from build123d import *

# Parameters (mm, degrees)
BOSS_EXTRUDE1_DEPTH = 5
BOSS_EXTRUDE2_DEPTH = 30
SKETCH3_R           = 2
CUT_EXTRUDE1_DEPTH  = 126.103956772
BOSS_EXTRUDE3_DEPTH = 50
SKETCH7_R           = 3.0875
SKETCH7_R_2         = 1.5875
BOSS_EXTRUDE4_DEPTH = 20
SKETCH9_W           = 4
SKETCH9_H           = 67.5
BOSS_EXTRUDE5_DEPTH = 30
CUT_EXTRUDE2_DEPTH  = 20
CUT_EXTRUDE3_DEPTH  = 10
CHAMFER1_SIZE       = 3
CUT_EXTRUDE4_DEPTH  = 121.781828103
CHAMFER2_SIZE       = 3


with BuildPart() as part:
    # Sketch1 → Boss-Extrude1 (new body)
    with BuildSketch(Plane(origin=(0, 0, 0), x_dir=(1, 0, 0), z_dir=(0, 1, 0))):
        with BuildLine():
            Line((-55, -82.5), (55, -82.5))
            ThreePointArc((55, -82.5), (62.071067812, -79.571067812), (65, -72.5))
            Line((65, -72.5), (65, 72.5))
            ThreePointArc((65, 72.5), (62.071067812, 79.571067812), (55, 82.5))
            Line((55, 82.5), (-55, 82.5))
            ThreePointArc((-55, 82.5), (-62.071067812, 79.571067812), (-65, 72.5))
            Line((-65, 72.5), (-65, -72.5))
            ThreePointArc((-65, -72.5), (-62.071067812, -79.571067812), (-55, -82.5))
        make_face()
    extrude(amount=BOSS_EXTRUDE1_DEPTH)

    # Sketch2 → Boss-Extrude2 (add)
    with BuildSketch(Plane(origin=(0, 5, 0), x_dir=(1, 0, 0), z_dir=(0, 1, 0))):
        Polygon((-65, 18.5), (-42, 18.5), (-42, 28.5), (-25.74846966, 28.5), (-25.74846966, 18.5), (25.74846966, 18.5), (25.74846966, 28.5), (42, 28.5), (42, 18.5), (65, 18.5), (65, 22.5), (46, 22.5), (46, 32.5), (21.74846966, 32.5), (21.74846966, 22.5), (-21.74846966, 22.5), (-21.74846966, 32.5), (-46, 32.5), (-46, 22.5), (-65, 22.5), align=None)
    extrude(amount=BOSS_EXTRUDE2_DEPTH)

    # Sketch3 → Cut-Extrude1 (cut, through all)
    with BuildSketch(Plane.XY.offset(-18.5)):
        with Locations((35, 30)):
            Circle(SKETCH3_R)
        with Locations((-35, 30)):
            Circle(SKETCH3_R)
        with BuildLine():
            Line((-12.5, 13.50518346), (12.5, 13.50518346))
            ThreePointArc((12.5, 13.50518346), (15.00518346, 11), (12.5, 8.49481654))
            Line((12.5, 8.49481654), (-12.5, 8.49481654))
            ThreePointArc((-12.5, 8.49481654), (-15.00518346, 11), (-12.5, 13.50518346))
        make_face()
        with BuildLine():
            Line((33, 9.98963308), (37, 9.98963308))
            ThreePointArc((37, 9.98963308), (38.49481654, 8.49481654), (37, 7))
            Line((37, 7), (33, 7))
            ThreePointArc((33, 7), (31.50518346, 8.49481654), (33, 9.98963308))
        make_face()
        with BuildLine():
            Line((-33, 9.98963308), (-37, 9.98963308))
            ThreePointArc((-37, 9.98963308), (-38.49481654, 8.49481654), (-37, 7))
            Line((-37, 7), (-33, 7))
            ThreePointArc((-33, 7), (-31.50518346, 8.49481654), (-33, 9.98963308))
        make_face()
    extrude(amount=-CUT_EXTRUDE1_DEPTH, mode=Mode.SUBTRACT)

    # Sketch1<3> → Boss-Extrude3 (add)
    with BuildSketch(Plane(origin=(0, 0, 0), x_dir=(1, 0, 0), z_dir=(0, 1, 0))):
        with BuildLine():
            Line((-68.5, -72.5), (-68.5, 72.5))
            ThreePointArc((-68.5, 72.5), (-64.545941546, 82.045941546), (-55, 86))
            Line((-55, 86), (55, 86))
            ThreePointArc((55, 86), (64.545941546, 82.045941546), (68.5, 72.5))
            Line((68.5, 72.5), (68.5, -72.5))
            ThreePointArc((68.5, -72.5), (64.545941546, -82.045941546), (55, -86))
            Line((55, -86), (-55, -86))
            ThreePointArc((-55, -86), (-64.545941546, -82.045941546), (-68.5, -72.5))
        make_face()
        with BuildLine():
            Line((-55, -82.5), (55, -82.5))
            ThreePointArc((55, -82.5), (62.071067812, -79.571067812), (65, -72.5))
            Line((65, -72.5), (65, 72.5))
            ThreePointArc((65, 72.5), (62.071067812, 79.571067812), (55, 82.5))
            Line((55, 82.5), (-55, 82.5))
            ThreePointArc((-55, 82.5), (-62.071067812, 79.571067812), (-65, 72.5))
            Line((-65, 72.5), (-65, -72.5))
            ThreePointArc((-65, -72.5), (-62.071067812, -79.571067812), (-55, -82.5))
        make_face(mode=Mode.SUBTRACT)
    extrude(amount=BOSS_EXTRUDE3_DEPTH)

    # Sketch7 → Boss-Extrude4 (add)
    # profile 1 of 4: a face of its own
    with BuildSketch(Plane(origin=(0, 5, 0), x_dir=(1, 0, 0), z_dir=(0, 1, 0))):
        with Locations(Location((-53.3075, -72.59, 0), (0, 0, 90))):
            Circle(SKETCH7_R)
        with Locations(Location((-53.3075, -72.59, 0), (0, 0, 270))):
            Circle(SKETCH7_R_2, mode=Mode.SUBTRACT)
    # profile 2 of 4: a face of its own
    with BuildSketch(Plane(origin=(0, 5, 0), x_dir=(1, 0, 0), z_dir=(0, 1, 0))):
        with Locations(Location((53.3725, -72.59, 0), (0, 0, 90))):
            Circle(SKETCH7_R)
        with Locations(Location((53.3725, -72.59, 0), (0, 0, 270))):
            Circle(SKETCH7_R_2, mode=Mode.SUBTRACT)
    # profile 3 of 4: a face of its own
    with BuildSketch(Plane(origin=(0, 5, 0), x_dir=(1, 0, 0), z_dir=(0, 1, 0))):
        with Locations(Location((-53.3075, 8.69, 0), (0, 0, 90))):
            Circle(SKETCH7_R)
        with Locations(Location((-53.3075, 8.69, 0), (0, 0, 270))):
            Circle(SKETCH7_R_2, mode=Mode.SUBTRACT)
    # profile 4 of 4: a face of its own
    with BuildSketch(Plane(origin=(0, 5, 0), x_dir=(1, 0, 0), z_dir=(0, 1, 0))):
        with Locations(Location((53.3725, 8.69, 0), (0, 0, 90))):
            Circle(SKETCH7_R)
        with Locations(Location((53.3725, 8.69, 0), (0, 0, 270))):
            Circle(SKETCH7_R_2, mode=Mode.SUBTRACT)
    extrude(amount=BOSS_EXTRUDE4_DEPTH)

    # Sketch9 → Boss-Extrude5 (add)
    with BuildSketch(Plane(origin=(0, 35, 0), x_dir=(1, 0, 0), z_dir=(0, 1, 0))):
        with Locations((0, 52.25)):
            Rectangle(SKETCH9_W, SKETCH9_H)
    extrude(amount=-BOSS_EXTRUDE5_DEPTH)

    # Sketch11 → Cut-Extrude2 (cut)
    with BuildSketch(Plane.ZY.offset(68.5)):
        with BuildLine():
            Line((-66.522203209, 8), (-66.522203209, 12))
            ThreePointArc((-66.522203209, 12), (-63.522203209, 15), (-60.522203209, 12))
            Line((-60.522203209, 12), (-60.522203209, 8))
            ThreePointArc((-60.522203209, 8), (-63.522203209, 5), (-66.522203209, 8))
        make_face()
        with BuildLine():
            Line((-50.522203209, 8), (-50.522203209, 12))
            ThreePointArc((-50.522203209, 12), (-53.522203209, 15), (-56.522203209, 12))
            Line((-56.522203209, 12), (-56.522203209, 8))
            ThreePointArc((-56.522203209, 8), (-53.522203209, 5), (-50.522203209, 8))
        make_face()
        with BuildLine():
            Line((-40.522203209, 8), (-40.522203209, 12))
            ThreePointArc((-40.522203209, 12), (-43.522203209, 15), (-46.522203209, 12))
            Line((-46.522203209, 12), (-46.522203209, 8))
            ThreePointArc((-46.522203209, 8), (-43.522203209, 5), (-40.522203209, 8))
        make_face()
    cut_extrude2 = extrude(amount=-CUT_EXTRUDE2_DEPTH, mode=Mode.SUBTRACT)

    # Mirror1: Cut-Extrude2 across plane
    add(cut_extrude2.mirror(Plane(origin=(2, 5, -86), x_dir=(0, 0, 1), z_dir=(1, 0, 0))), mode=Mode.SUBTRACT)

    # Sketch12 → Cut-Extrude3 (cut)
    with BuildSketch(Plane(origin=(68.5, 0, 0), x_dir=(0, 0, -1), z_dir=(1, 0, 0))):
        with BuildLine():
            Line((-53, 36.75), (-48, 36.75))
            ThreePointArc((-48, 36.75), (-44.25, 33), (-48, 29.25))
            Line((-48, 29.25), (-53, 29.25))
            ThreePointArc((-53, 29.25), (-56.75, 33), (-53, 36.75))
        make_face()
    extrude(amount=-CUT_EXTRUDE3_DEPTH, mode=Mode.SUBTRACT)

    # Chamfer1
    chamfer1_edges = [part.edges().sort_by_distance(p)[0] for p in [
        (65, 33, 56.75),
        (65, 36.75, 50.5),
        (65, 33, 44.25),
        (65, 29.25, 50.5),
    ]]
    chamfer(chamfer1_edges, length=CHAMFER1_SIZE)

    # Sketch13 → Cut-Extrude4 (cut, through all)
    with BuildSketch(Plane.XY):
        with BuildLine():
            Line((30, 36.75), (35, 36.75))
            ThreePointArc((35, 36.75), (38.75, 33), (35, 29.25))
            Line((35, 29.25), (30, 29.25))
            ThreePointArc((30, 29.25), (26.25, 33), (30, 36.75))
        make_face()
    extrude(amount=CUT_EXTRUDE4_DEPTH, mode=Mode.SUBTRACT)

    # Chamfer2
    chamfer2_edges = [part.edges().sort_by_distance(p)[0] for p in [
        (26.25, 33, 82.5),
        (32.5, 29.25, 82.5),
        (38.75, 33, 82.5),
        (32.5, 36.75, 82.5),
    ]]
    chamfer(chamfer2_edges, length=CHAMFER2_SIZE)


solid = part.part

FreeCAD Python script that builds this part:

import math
import FreeCAD as App
import Part
import Sketcher
from FreeCAD import Vector


def edges_at(feature, points):
    """Names of the edges that pass closest to the given points."""
    edges = feature.Shape.Edges
    near = lambda p: min(range(len(edges)), key=lambda i: edges[i].distToShape(Part.Vertex(*p))[0])
    return sorted({f"Edge{near(p) + 1}" for p in points})

doc = App.newDocument("Part")
body = doc.addObject("PartDesign::Body", "Body")

# Sketch on XZ plane
sketch1 = body.newObject("Sketcher::SketchObject", "Sketch")
sketch1.AttachmentSupport = (doc.getObject("XZ_Plane"), [""])
sketch1.MapMode = "FlatFace"
sketch1.addGeometry(Part.LineSegment(Vector(-55, 82.5, 0), Vector(55, 82.5, 0)), False)
sketch1.addGeometry(Part.ArcOfCircle(Part.Circle(Vector(55, 72.5, 0), Vector(0, 0, 1), 10), math.radians(0), math.radians(90)), False)
sketch1.addGeometry(Part.LineSegment(Vector(65, 72.5, 0), Vector(65, -72.5, 0)), False)
sketch1.addGeometry(Part.ArcOfCircle(Part.Circle(Vector(55, -72.5, 0), Vector(0, 0, 1), 10), math.radians(-90), math.radians(0)), False)
sketch1.addGeometry(Part.LineSegment(Vector(55, -82.5, 0), Vector(-55, -82.5, 0)), False)
sketch1.addGeometry(Part.ArcOfCircle(Part.Circle(Vector(-55, -72.5, 0), Vector(0, 0, 1), 10), math.radians(180), math.radians(270)), False)
sketch1.addGeometry(Part.LineSegment(Vector(-65, -72.5, 0), Vector(-65, 72.5, 0)), False)
sketch1.addGeometry(Part.ArcOfCircle(Part.Circle(Vector(-55, 72.5, 0), Vector(0, 0, 1), 10), math.radians(90), math.radians(180)), False)
sketch1.addConstraint(Sketcher.Constraint("Tangent", 0, 2, 1, 2))
sketch1.addConstraint(Sketcher.Constraint("Tangent", 1, 1, 2, 1))
sketch1.addConstraint(Sketcher.Constraint("Tangent", 2, 2, 3, 2))
sketch1.addConstraint(Sketcher.Constraint("Tangent", 3, 1, 4, 1))
sketch1.addConstraint(Sketcher.Constraint("Tangent", 4, 2, 5, 2))
sketch1.addConstraint(Sketcher.Constraint("Tangent", 5, 1, 6, 1))
sketch1.addConstraint(Sketcher.Constraint("Tangent", 6, 2, 7, 2))
sketch1.addConstraint(Sketcher.Constraint("Tangent", 7, 1, 0, 1))
sketch1.addConstraint(Sketcher.Constraint("Horizontal", 0))
sketch1.addConstraint(Sketcher.Constraint("Vertical", 2))
sketch1.addConstraint(Sketcher.Constraint("Horizontal", 4))
sketch1.addConstraint(Sketcher.Constraint("Vertical", 6))
sketch1.addConstraint(Sketcher.Constraint("Equal", 1, 3))
sketch1.addConstraint(Sketcher.Constraint("Equal", 3, 5))
sketch1.addConstraint(Sketcher.Constraint("Equal", 5, 7))
sketch1.addConstraint(Sketcher.Constraint("Symmetric", 1, 3, 5, 3, -1, 1))
sketch1.addConstraint(Sketcher.Constraint("Radius", 1, 10.0))
sketch1.addConstraint(Sketcher.Constraint("DistanceX", 0, 1, 0, 2, 110.0))
sketch1.addConstraint(Sketcher.Constraint("DistanceY", 2, 2, 2, 1, 145.0))
pad1 = body.newObject("PartDesign::Pad", "Pad")
pad1.Profile = sketch1
pad1.Length = 5
pad1.Reversed = True

# Sketch on XZ plane
sketch2 = body.newObject("Sketcher::SketchObject", "Sketch001")
sketch2.AttachmentSupport = (doc.getObject("XZ_Plane"), [""])
sketch2.MapMode = "FlatFace"
sketch2.AttachmentOffset = App.Placement(Vector(0, 0, -5), App.Rotation())
sketch2.addGeometry(Part.LineSegment(Vector(-65, -18.5, 0), Vector(-42, -18.5, 0)), False)
sketch2.addGeometry(Part.LineSegment(Vector(-42, -18.5, 0), Vector(-42, -28.5, 0)), False)
sketch2.addGeometry(Part.LineSegment(Vector(-42, -28.5, 0), Vector(-25.74847, -28.5, 0)), False)
sketch2.addGeometry(Part.LineSegment(Vector(-25.74847, -28.5, 0), Vector(-25.74847, -18.5, 0)), False)
sketch2.addGeometry(Part.LineSegment(Vector(-25.74847, -18.5, 0), Vector(25.74847, -18.5, 0)), False)
sketch2.addGeometry(Part.LineSegment(Vector(25.74847, -18.5, 0), Vector(25.74847, -28.5, 0)), False)
sketch2.addGeometry(Part.LineSegment(Vector(25.74847, -28.5, 0), Vector(42, -28.5, 0)), False)
sketch2.addGeometry(Part.LineSegment(Vector(42, -28.5, 0), Vector(42, -18.5, 0)), False)
sketch2.addGeometry(Part.LineSegment(Vector(42, -18.5, 0), Vector(65, -18.5, 0)), False)
sketch2.addGeometry(Part.LineSegment(Vector(65, -18.5, 0), Vector(65, -22.5, 0)), False)
sketch2.addGeometry(Part.LineSegment(Vector(65, -22.5, 0), Vector(46, -22.5, 0)), False)
sketch2.addGeometry(Part.LineSegment(Vector(46, -22.5, 0), Vector(46, -32.5, 0)), False)
sketch2.addGeometry(Part.LineSegment(Vector(46, -32.5, 0), Vector(21.74847, -32.5, 0)), False)
sketch2.addGeometry(Part.LineSegment(Vector(21.74847, -32.5, 0), Vector(21.74847, -22.5, 0)), False)
sketch2.addGeometry(Part.LineSegment(Vector(21.74847, -22.5, 0), Vector(-21.74847, -22.5, 0)), False)
sketch2.addGeometry(Part.LineSegment(Vector(-21.74847, -22.5, 0), Vector(-21.74847, -32.5, 0)), False)
sketch2.addGeometry(Part.LineSegment(Vector(-21.74847, -32.5, 0), Vector(-46, -32.5, 0)), False)
sketch2.addGeometry(Part.LineSegment(Vector(-46, -32.5, 0), Vector(-46, -22.5, 0)), False)
sketch2.addGeometry(Part.LineSegment(Vector(-46, -22.5, 0), Vector(-65, -22.5, 0)), False)
sketch2.addGeometry(Part.LineSegment(Vector(-65, -22.5, 0), Vector(-65, -18.5, 0)), False)
sketch2.addConstraint(Sketcher.Constraint("Coincident", 0, 2, 1, 1))
sketch2.addConstraint(Sketcher.Constraint("Coincident", 1, 2, 2, 1))
sketch2.addConstraint(Sketcher.Constraint("Coincident", 2, 2, 3, 1))
sketch2.addConstraint(Sketcher.Constraint("Coincident", 3, 2, 4, 1))
sketch2.addConstraint(Sketcher.Constraint("Coincident", 4, 2, 5, 1))
sketch2.addConstraint(Sketcher.Constraint("Coincident", 5, 2, 6, 1))
sketch2.addConstraint(Sketcher.Constraint("Coincident", 6, 2, 7, 1))
sketch2.addConstraint(Sketcher.Constraint("Coincident", 7, 2, 8, 1))
sketch2.addConstraint(Sketcher.Constraint("Coincident", 8, 2, 9, 1))
sketch2.addConstraint(Sketcher.Constraint("Coincident", 9, 2, 10, 1))
sketch2.addConstraint(Sketcher.Constraint("Coincident", 10, 2, 11, 1))
sketch2.addConstraint(Sketcher.Constraint("Coincident", 11, 2, 12, 1))
sketch2.addConstraint(Sketcher.Constraint("Coincident", 12, 2, 13, 1))
sketch2.addConstraint(Sketcher.Constraint("Coincident", 13, 2, 14, 1))
sketch2.addConstraint(Sketcher.Constraint("Coincident", 14, 2, 15, 1))
sketch2.addConstraint(Sketcher.Constraint("Coincident", 15, 2, 16, 1))
sketch2.addConstraint(Sketcher.Constraint("Coincident", 16, 2, 17, 1))
sketch2.addConstraint(Sketcher.Constraint("Coincident", 17, 2, 18, 1))
sketch2.addConstraint(Sketcher.Constraint("Coincident", 18, 2, 19, 1))
sketch2.addConstraint(Sketcher.Constraint("Coincident", 19, 2, 0, 1))
sketch2.addConstraint(Sketcher.Constraint("Horizontal", 0))
sketch2.addConstraint(Sketcher.Constraint("Vertical", 1))
sketch2.addConstraint(Sketcher.Constraint("Horizontal", 2))
sketch2.addConstraint(Sketcher.Constraint("Vertical", 3))
sketch2.addConstraint(Sketcher.Constraint("Horizontal", 4))
sketch2.addConstraint(Sketcher.Constraint("Vertical", 5))
sketch2.addConstraint(Sketcher.Constraint("Horizontal", 6))
sketch2.addConstraint(Sketcher.Constraint("Vertical", 7))
sketch2.addConstraint(Sketcher.Constraint("Horizontal", 8))
sketch2.addConstraint(Sketcher.Constraint("Vertical", 9))
sketch2.addConstraint(Sketcher.Constraint("Horizontal", 10))
sketch2.addConstraint(Sketcher.Constraint("Vertical", 11))
sketch2.addConstraint(Sketcher.Constraint("Horizontal", 12))
sketch2.addConstraint(Sketcher.Constraint("Vertical", 13))
sketch2.addConstraint(Sketcher.Constraint("Horizontal", 14))
sketch2.addConstraint(Sketcher.Constraint("Vertical", 15))
sketch2.addConstraint(Sketcher.Constraint("Horizontal", 16))
sketch2.addConstraint(Sketcher.Constraint("Vertical", 17))
sketch2.addConstraint(Sketcher.Constraint("Horizontal", 18))
sketch2.addConstraint(Sketcher.Constraint("Vertical", 19))
sketch2.addConstraint(Sketcher.Constraint("Symmetric", 2, 2, 5, 2, -2))
sketch2.addConstraint(Sketcher.Constraint("Symmetric", 0, 2, 7, 2, -2))
sketch2.addConstraint(Sketcher.Constraint("Symmetric", 12, 2, 15, 2, -2))
sketch2.addConstraint(Sketcher.Constraint("Symmetric", 10, 2, 17, 2, -2))
sketch2.addConstraint(Sketcher.Constraint("Horizontal", 0, 2, 3, 2))
sketch2.addConstraint(Sketcher.Constraint("Horizontal", 10, 2, 13, 2))
sketch2.addConstraint(Sketcher.Constraint("Equal", 0, 8))
sketch2.addConstraint(Sketcher.Constraint("Equal", 7, 11))
sketch2.addConstraint(Sketcher.Constraint("DistanceX", 0, 1, 0, 2, 23.0))
sketch2.addConstraint(Sketcher.Constraint("DistanceX", 10, 2, 10, 1, 19.0))
sketch2.addConstraint(Sketcher.Constraint("DistanceY", 1, 2, 1, 1, 10.0))
sketch2.addConstraint(Sketcher.Constraint("DistanceY", 9, 2, 9, 1, 4.0))
sketch2.addConstraint(Sketcher.Constraint("DistanceX", 0, 2, -1, 1, 42.0))
sketch2.addConstraint(Sketcher.Constraint("DistanceX", 12, 2, 5, 2, 4.0))
sketch2.addConstraint(Sketcher.Constraint("DistanceY", 0, 2, -1, 1, 18.5))
sketch2.addConstraint(Sketcher.Constraint("DistanceX", 2, 1, 2, 2, 16.25153))
pad2 = body.newObject("PartDesign::Pad", "Pad001")
pad2.Profile = sketch2
pad2.Length = 30
pad2.Reversed = True

# Sketch on XY plane
sketch3 = body.newObject("Sketcher::SketchObject", "Sketch002")
sketch3.AttachmentSupport = (doc.getObject("XY_Plane"), [""])
sketch3.MapMode = "FlatFace"
sketch3.AttachmentOffset = App.Placement(Vector(0, 0, -18.5), App.Rotation())
sketch3.addGeometry(Part.Circle(Vector(35, 30, 0), Vector(0, 0, 1), 2), False)
sketch3.addGeometry(Part.Circle(Vector(-35, 30, 0), Vector(0, 0, 1), 2), False)
sketch3.addGeometry(Part.LineSegment(Vector(12.5, 13.505183, 0), Vector(-12.5, 13.505183, 0)), False)
sketch3.addGeometry(Part.ArcOfCircle(Part.Circle(Vector(-12.5, 11, 0), Vector(0, 0, 1), 2.505183), math.radians(90), math.radians(270)), False)
sketch3.addGeometry(Part.LineSegment(Vector(-12.5, 8.494817, 0), Vector(12.5, 8.494817, 0)), False)
sketch3.addGeometry(Part.ArcOfCircle(Part.Circle(Vector(12.5, 11, 0), Vector(0, 0, 1), 2.505183), math.radians(-90), math.radians(90)), False)
sketch3.addGeometry(Part.LineSegment(Vector(37, 9.989633, 0), Vector(33, 9.989633, 0)), False)
sketch3.addGeometry(Part.ArcOfCircle(Part.Circle(Vector(33, 8.494817, 0), Vector(0, 0, 1), 1.494817), math.radians(90), math.radians(270)), False)
sketch3.addGeometry(Part.LineSegment(Vector(33, 7, 0), Vector(37, 7, 0)), False)
sketch3.addGeometry(Part.ArcOfCircle(Part.Circle(Vector(37, 8.494817, 0), Vector(0, 0, 1), 1.494817), math.radians(-90), math.radians(90)), False)
sketch3.addGeometry(Part.LineSegment(Vector(-33, 9.989633, 0), Vector(-37, 9.989633, 0)), False)
sketch3.addGeometry(Part.ArcOfCircle(Part.Circle(Vector(-37, 8.494817, 0), Vector(0, 0, 1), 1.494817), math.radians(90), math.radians(270)), False)
sketch3.addGeometry(Part.LineSegment(Vector(-37, 7, 0), Vector(-33, 7, 0)), False)
sketch3.addGeometry(Part.ArcOfCircle(Part.Circle(Vector(-33, 8.494817, 0), Vector(0, 0, 1), 1.494817), math.radians(-90), math.radians(90)), False)
sketch3.addConstraint(Sketcher.Constraint("Tangent", 2, 2, 3, 1))
sketch3.addConstraint(Sketcher.Constraint("Tangent", 3, 2, 4, 1))
sketch3.addConstraint(Sketcher.Constraint("Tangent", 4, 2, 5, 1))
sketch3.addConstraint(Sketcher.Constraint("Tangent", 5, 2, 2, 1))
sketch3.addConstraint(Sketcher.Constraint("Tangent", 6, 2, 7, 1))
sketch3.addConstraint(Sketcher.Constraint("Tangent", 7, 2, 8, 1))
sketch3.addConstraint(Sketcher.Constraint("Tangent", 8, 2, 9, 1))
sketch3.addConstraint(Sketcher.Constraint("Tangent", 9, 2, 6, 1))
sketch3.addConstraint(Sketcher.Constraint("Tangent", 10, 2, 11, 1))
sketch3.addConstraint(Sketcher.Constraint("Tangent", 11, 2, 12, 1))
sketch3.addConstraint(Sketcher.Constraint("Tangent", 12, 2, 13, 1))
sketch3.addConstraint(Sketcher.Constraint("Tangent", 13, 2, 10, 1))
sketch3.addConstraint(Sketcher.Constraint("Horizontal", 2))
sketch3.addConstraint(Sketcher.Constraint("Horizontal", 4))
sketch3.addConstraint(Sketcher.Constraint("Horizontal", 6))
sketch3.addConstraint(Sketcher.Constraint("Horizontal", 8))
sketch3.addConstraint(Sketcher.Constraint("Horizontal", 10))
sketch3.addConstraint(Sketcher.Constraint("Horizontal", 12))
sketch3.addConstraint(Sketcher.Constraint("Equal", 0, 1))
sketch3.addConstraint(Sketcher.Constraint("Equal", 9, 11))
sketch3.addConstraint(Sketcher.Constraint("Symmetric", 0, 3, 1, 3, -2))
sketch3.addConstraint(Sketcher.Constraint("Symmetric", 9, 3, 11, 3, -2))
sketch3.addConstraint(Sketcher.Constraint("Horizontal", 13, 3, 3, 2))
sketch3.addConstraint(Sketcher.Constraint("Equal", 8, 10))
sketch3.addConstraint(Sketcher.Constraint("Diameter", 0, 4.0))
sketch3.addConstraint(Sketcher.Constraint("DistanceX", 2, 2, 2, 1, 25.0))
sketch3.addConstraint(Sketcher.Constraint("DistanceX", 6, 2, 6, 1, 4.0))
sketch3.addConstraint(Sketcher.Constraint("DistanceX", -1, 1, 0, 3, 35.0))
sketch3.addConstraint(Sketcher.Constraint("DistanceY", -1, 1, 0, 3, 30.0))
sketch3.addConstraint(Sketcher.Constraint("DistanceY", -1, 1, 3, 3, 11.0))
sketch3.addConstraint(Sketcher.Constraint("DistanceX", -1, 1, 7, 3, 33.0))
sketch3.addConstraint(Sketcher.Constraint("DistanceY", -1, 1, 7, 2, 7.0))
sketch3.addConstraint(Sketcher.Constraint("DistanceX", 3, 3, -1, 1, 12.5))
sketch3.addConstraint(Sketcher.Constraint("Radius", 3, 2.505183))
pocket1 = body.newObject("PartDesign::Pocket", "Pocket")
pocket1.Profile = sketch3
pocket1.Type = "ThroughAll"

# Sketch on XZ plane
sketch4 = body.newObject("Sketcher::SketchObject", "Sketch003")
sketch4.AttachmentSupport = (doc.getObject("XZ_Plane"), [""])
sketch4.MapMode = "FlatFace"
sketch4.addGeometry(Part.LineSegment(Vector(-68.5, -72.5, 0), Vector(-68.5, 72.5, 0)), False)
sketch4.addGeometry(Part.ArcOfCircle(Part.Circle(Vector(-55, 72.5, 0), Vector(0, 0, 1), 13.5), math.radians(90), math.radians(180)), False)
sketch4.addGeometry(Part.LineSegment(Vector(-55, 86, 0), Vector(55, 86, 0)), False)
sketch4.addGeometry(Part.ArcOfCircle(Part.Circle(Vector(55, 72.5, 0), Vector(0, 0, 1), 13.5), math.radians(0), math.radians(90)), False)
sketch4.addGeometry(Part.LineSegment(Vector(68.5, 72.5, 0), Vector(68.5, -72.5, 0)), False)
sketch4.addGeometry(Part.ArcOfCircle(Part.Circle(Vector(55, -72.5, 0), Vector(0, 0, 1), 13.5), math.radians(-90), math.radians(0)), False)
sketch4.addGeometry(Part.LineSegment(Vector(55, -86, 0), Vector(-55, -86, 0)), False)
sketch4.addGeometry(Part.ArcOfCircle(Part.Circle(Vector(-55, -72.5, 0), Vector(0, 0, 1), 13.5), math.radians(180), math.radians(270)), False)
sketch4.addGeometry(Part.ArcOfCircle(Part.Circle(Vector(-55, 72.5, 0), Vector(0, 0, 1), 10), math.radians(90), math.radians(180)), False)
sketch4.addGeometry(Part.LineSegment(Vector(-65, 72.5, 0), Vector(-65, -72.5, 0)), False)
sketch4.addGeometry(Part.ArcOfCircle(Part.Circle(Vector(-55, -72.5, 0), Vector(0, 0, 1), 10), math.radians(180), math.radians(270)), False)
sketch4.addGeometry(Part.LineSegment(Vector(-55, -82.5, 0), Vector(55, -82.5, 0)), False)
sketch4.addGeometry(Part.ArcOfCircle(Part.Circle(Vector(55, -72.5, 0), Vector(0, 0, 1), 10), math.radians(-90), math.radians(0)), False)
sketch4.addGeometry(Part.LineSegment(Vector(65, -72.5, 0), Vector(65, 72.5, 0)), False)
sketch4.addGeometry(Part.ArcOfCircle(Part.Circle(Vector(55, 72.5, 0), Vector(0, 0, 1), 10), math.radians(0), math.radians(90)), False)
sketch4.addGeometry(Part.LineSegment(Vector(55, 82.5, 0), Vector(-55, 82.5, 0)), False)
sketch4.addConstraint(Sketcher.Constraint("Tangent", 0, 2, 1, 2))
sketch4.addConstraint(Sketcher.Constraint("Tangent", 1, 1, 2, 1))
sketch4.addConstraint(Sketcher.Constraint("Tangent", 2, 2, 3, 2))
sketch4.addConstraint(Sketcher.Constraint("Tangent", 3, 1, 4, 1))
sketch4.addConstraint(Sketcher.Constraint("Tangent", 4, 2, 5, 2))
sketch4.addConstraint(Sketcher.Constraint("Tangent", 5, 1, 6, 1))
sketch4.addConstraint(Sketcher.Constraint("Tangent", 6, 2, 7, 2))
sketch4.addConstraint(Sketcher.Constraint("Tangent", 7, 1, 0, 1))
sketch4.addConstraint(Sketcher.Constraint("Tangent", 8, 2, 9, 1))
sketch4.addConstraint(Sketcher.Constraint("Tangent", 9, 2, 10, 1))
sketch4.addConstraint(Sketcher.Constraint("Tangent", 10, 2, 11, 1))
sketch4.addConstraint(Sketcher.Constraint("Tangent", 11, 2, 12, 1))
sketch4.addConstraint(Sketcher.Constraint("Tangent", 12, 2, 13, 1))
sketch4.addConstraint(Sketcher.Constraint("Tangent", 13, 2, 14, 1))
sketch4.addConstraint(Sketcher.Constraint("Tangent", 14, 2, 15, 1))
sketch4.addConstraint(Sketcher.Constraint("Tangent", 15, 2, 8, 1))
sketch4.addConstraint(Sketcher.Constraint("Vertical", 0))
sketch4.addConstraint(Sketcher.Constraint("Horizontal", 2))
sketch4.addConstraint(Sketcher.Constraint("Vertical", 4))
sketch4.addConstraint(Sketcher.Constraint("Horizontal", 6))
sketch4.addConstraint(Sketcher.Constraint("Vertical", 9))
sketch4.addConstraint(Sketcher.Constraint("Horizontal", 11))
sketch4.addConstraint(Sketcher.Constraint("Vertical", 13))
sketch4.addConstraint(Sketcher.Constraint("Horizontal", 15))
sketch4.addConstraint(Sketcher.Constraint("Coincident", 8, 3, 1, 3))
sketch4.addConstraint(Sketcher.Constraint("Coincident", 10, 3, 7, 3))
sketch4.addConstraint(Sketcher.Constraint("Coincident", 12, 3, 5, 3))
sketch4.addConstraint(Sketcher.Constraint("Equal", 1, 3))
sketch4.addConstraint(Sketcher.Constraint("Equal", 3, 5))
sketch4.addConstraint(Sketcher.Constraint("Equal", 5, 7))
sketch4.addConstraint(Sketcher.Constraint("Equal", 12, 14))
sketch4.addConstraint(Sketcher.Constraint("Symmetric", 1, 3, 5, 3, -1, 1))
sketch4.addConstraint(Sketcher.Constraint("Radius", 8, 10.0))
sketch4.addConstraint(Sketcher.Constraint("Radius", 1, 13.5))
sketch4.addConstraint(Sketcher.Constraint("DistanceX", 2, 1, 2, 2, 110.0))
sketch4.addConstraint(Sketcher.Constraint("DistanceY", 0, 1, 0, 2, 145.0))
pad3 = body.newObject("PartDesign::Pad", "Pad002")
pad3.Profile = sketch4
pad3.Length = 50
pad3.Reversed = True

# Sketch on XZ plane
sketch5 = body.newObject("Sketcher::SketchObject", "Sketch004")
sketch5.AttachmentSupport = (doc.getObject("XZ_Plane"), [""])
sketch5.MapMode = "FlatFace"
sketch5.AttachmentOffset = App.Placement(Vector(0, 0, -5), App.Rotation())
sketch5.addGeometry(Part.Circle(Vector(-53.3075, 72.59, 0), Vector(0, 0, 1), 3.0875), False)
sketch5.addGeometry(Part.Circle(Vector(-53.3075, 72.59, 0), Vector(0, 0, 1), 1.5875), False)
sketch5.addGeometry(Part.Circle(Vector(53.3725, 72.59, 0), Vector(0, 0, 1), 3.0875), False)
sketch5.addGeometry(Part.Circle(Vector(53.3725, 72.59, 0), Vector(0, 0, 1), 1.5875), False)
sketch5.addGeometry(Part.Circle(Vector(-53.3075, -8.69, 0), Vector(0, 0, 1), 3.0875), False)
sketch5.addGeometry(Part.Circle(Vector(-53.3075, -8.69, 0), Vector(0, 0, 1), 1.5875), False)
sketch5.addGeometry(Part.Circle(Vector(53.3725, -8.69, 0), Vector(0, 0, 1), 3.0875), False)
sketch5.addGeometry(Part.Circle(Vector(53.3725, -8.69, 0), Vector(0, 0, 1), 1.5875), False)
sketch5.addConstraint(Sketcher.Constraint("Coincident", 1, 3, 0, 3))
sketch5.addConstraint(Sketcher.Constraint("Coincident", 3, 3, 2, 3))
sketch5.addConstraint(Sketcher.Constraint("Coincident", 5, 3, 4, 3))
sketch5.addConstraint(Sketcher.Constraint("Coincident", 7, 3, 6, 3))
sketch5.addConstraint(Sketcher.Constraint("Equal", 0, 2))
sketch5.addConstraint(Sketcher.Constraint("Equal", 1, 3))
sketch5.addConstraint(Sketcher.Constraint("Equal", 2, 4))
sketch5.addConstraint(Sketcher.Constraint("Equal", 3, 5))
sketch5.addConstraint(Sketcher.Constraint("Equal", 4, 6))
sketch5.addConstraint(Sketcher.Constraint("Equal", 5, 7))
sketch5.addConstraint(Sketcher.Constraint("Horizontal", 1, 3, 2, 3))
sketch5.addConstraint(Sketcher.Constraint("Horizontal", 5, 3, 6, 3))
sketch5.addConstraint(Sketcher.Constraint("Vertical", 1, 3, 4, 3))
sketch5.addConstraint(Sketcher.Constraint("Vertical", 3, 3, 6, 3))
sketch5.addConstraint(Sketcher.Constraint("Diameter", 0, 6.175))
sketch5.addConstraint(Sketcher.Constraint("Diameter", 1, 3.175))
sketch5.addConstraint(Sketcher.Constraint("DistanceY", -1, 1, 0, 3, 72.59))
sketch5.addConstraint(Sketcher.Constraint("DistanceY", 4, 3, -1, 1, 8.69))
sketch5.addConstraint(Sketcher.Constraint("DistanceX", 0, 3, 2, 3, 106.68))
sketch5.addConstraint(Sketcher.Constraint("DistanceX", 0, 3, -1, 1, 53.3075))
pad4 = body.newObject("PartDesign::Pad", "Pad003")
pad4.Profile = sketch5
pad4.Length = 20
pad4.Reversed = True

# Sketch on XZ plane
sketch6 = body.newObject("Sketcher::SketchObject", "Sketch005")
sketch6.AttachmentSupport = (doc.getObject("XZ_Plane"), [""])
sketch6.MapMode = "FlatFace"
sketch6.AttachmentOffset = App.Placement(Vector(0, 0, -35), App.Rotation())
sketch6.addGeometry(Part.LineSegment(Vector(-2, -86, 0), Vector(-2, -18.5, 0)), False)
sketch6.addGeometry(Part.LineSegment(Vector(-2, -18.5, 0), Vector(2, -18.5, 0)), False)
sketch6.addGeometry(Part.LineSegment(Vector(2, -18.5, 0), Vector(2, -86, 0)), False)
sketch6.addGeometry(Part.LineSegment(Vector(2, -86, 0), Vector(-2, -86, 0)), False)
sketch6.addConstraint(Sketcher.Constraint("Coincident", 0, 2, 1, 1))
sketch6.addConstraint(Sketcher.Constraint("Coincident", 1, 2, 2, 1))
sketch6.addConstraint(Sketcher.Constraint("Coincident", 2, 2, 3, 1))
sketch6.addConstraint(Sketcher.Constraint("Coincident", 3, 2, 0, 1))
sketch6.addConstraint(Sketcher.Constraint("Vertical", 0))
sketch6.addConstraint(Sketcher.Constraint("Horizontal", 1))
sketch6.addConstraint(Sketcher.Constraint("Vertical", 2))
sketch6.addConstraint(Sketcher.Constraint("Horizontal", 3))
sketch6.addConstraint(Sketcher.Constraint("DistanceX", 1, 1, 1, 2, 4.0))
sketch6.addConstraint(Sketcher.Constraint("DistanceY", 0, 1, 0, 2, 67.5))
sketch6.addConstraint(Sketcher.Constraint("DistanceX", 0, 2, -1, 1, 2.0))
sketch6.addConstraint(Sketcher.Constraint("DistanceY", 2, 2, -1, 1, 86.0))
pad5 = body.newObject("PartDesign::Pad", "Pad004")
pad5.Profile = sketch6
pad5.Length = 30

# Sketch on YZ plane
sketch7 = body.newObject("Sketcher::SketchObject", "Sketch006")
sketch7.AttachmentSupport = (doc.getObject("YZ_Plane"), [""])
sketch7.MapMode = "FlatFace"
sketch7.AttachmentOffset = App.Placement(Vector(0, 0, -68.5), App.Rotation())
sketch7.addGeometry(Part.LineSegment(Vector(12, -66.522203, 0), Vector(8, -66.522203, 0)), False)
sketch7.addGeometry(Part.ArcOfCircle(Part.Circle(Vector(8, -63.522203, 0), Vector(0, 0, 1), 3), math.radians(90), math.radians(270)), False)
sketch7.addGeometry(Part.LineSegment(Vector(8, -60.522203, 0), Vector(12, -60.522203, 0)), False)
sketch7.addGeometry(Part.ArcOfCircle(Part.Circle(Vector(12, -63.522203, 0), Vector(0, 0, 1), 3), math.radians(-90), math.radians(90)), False)
sketch7.addGeometry(Part.LineSegment(Vector(8, -50.522203, 0), Vector(12, -50.522203, 0)), False)
sketch7.addGeometry(Part.ArcOfCircle(Part.Circle(Vector(12, -53.522203, 0), Vector(0, 0, 1), 3), math.radians(-90), math.radians(90)), False)
sketch7.addGeometry(Part.LineSegment(Vector(12, -56.522203, 0), Vector(8, -56.522203, 0)), False)
sketch7.addGeometry(Part.ArcOfCircle(Part.Circle(Vector(8, -53.522203, 0), Vector(0, 0, 1), 3), math.radians(90), math.radians(270)), False)
sketch7.addGeometry(Part.LineSegment(Vector(8, -40.522203, 0), Vector(12, -40.522203, 0)), False)
sketch7.addGeometry(Part.ArcOfCircle(Part.Circle(Vector(12, -43.522203, 0), Vector(0, 0, 1), 3), math.radians(-90), math.radians(90)), False)
sketch7.addGeometry(Part.LineSegment(Vector(12, -46.522203, 0), Vector(8, -46.522203, 0)), False)
sketch7.addGeometry(Part.ArcOfCircle(Part.Circle(Vector(8, -43.522203, 0), Vector(0, 0, 1), 3), math.radians(90), math.radians(270)), False)
sketch7.addConstraint(Sketcher.Constraint("Tangent", 0, 2, 1, 2))
sketch7.addConstraint(Sketcher.Constraint("Tangent", 1, 1, 2, 1))
sketch7.addConstraint(Sketcher.Constraint("Tangent", 2, 2, 3, 2))
sketch7.addConstraint(Sketcher.Constraint("Tangent", 3, 1, 0, 1))
sketch7.addConstraint(Sketcher.Constraint("Tangent", 4, 2, 5, 2))
sketch7.addConstraint(Sketcher.Constraint("Tangent", 5, 1, 6, 1))
sketch7.addConstraint(Sketcher.Constraint("Tangent", 6, 2, 7, 2))
sketch7.addConstraint(Sketcher.Constraint("Tangent", 7, 1, 4, 1))
sketch7.addConstraint(Sketcher.Constraint("Tangent", 8, 2, 9, 2))
sketch7.addConstraint(Sketcher.Constraint("Tangent", 9, 1, 10, 1))
sketch7.addConstraint(Sketcher.Constraint("Tangent", 10, 2, 11, 2))
sketch7.addConstraint(Sketcher.Constraint("Tangent", 11, 1, 8, 1))
sketch7.addConstraint(Sketcher.Constraint("Horizontal", 0))
sketch7.addConstraint(Sketcher.Constraint("Horizontal", 2))
sketch7.addConstraint(Sketcher.Constraint("Horizontal", 4))
sketch7.addConstraint(Sketcher.Constraint("Horizontal", 6))
sketch7.addConstraint(Sketcher.Constraint("Horizontal", 8))
sketch7.addConstraint(Sketcher.Constraint("Horizontal", 10))
sketch7.addConstraint(Sketcher.Constraint("Equal", 3, 5))
sketch7.addConstraint(Sketcher.Constraint("Equal", 7, 9))
sketch7.addConstraint(Sketcher.Constraint("Vertical", 3, 3, 5, 3))
sketch7.addConstraint(Sketcher.Constraint("Vertical", 1, 3, 7, 3))
sketch7.addConstraint(Sketcher.Constraint("Vertical", 5, 3, 9, 3))
sketch7.addConstraint(Sketcher.Constraint("Vertical", 7, 3, 11, 3))
sketch7.addConstraint(Sketcher.Constraint("Radius", 1, 3.0))
sketch7.addConstraint(Sketcher.Constraint("DistanceX", 0, 2, 0, 1, 4.0))
sketch7.addConstraint(Sketcher.Constraint("DistanceX", -1, 1, 1, 3, 8.0))
sketch7.addConstraint(Sketcher.Constraint("DistanceY", 3, 3, 5, 3, 10.0))
sketch7.addConstraint(Sketcher.Constraint("DistanceY", 5, 3, 9, 3, 10.0))
sketch7.addConstraint(Sketcher.Constraint("DistanceY", 1, 3, -1, 1, 63.522203))
pocket2 = body.newObject("PartDesign::Pocket", "Pocket001")
pocket2.Profile = sketch7
pocket2.Length = 20
pocket2.Reversed = True
doc.recompute()

datumplane = body.newObject("PartDesign::Plane", "DatumPlane")
datumplane.AttachmentSupport = (doc.getObject("YZ_Plane"), [""])
datumplane.MapMode = "FlatFace"
datumplane.AttachmentOffset = App.Placement(Vector(0, 0, 2), App.Rotation())
mirrored = body.newObject("PartDesign::Mirrored", "Mirrored")
mirrored.Originals = [pocket2]
mirrored.MirrorPlane = (datumplane, [""])
body.Tip = mirrored

# Sketch on YZ plane
sketch8 = body.newObject("Sketcher::SketchObject", "Sketch007")
sketch8.AttachmentSupport = (doc.getObject("YZ_Plane"), [""])
sketch8.MapMode = "FlatFace"
sketch8.AttachmentOffset = App.Placement(Vector(0, 0, 68.5), App.Rotation())
sketch8.addGeometry(Part.LineSegment(Vector(36.75, 48, 0), Vector(36.75, 53, 0)), False)
sketch8.addGeometry(Part.ArcOfCircle(Part.Circle(Vector(33, 53, 0), Vector(0, 0, 1), 3.75), math.radians(0), math.radians(180)), False)
sketch8.addGeometry(Part.LineSegment(Vector(29.25, 53, 0), Vector(29.25, 48, 0)), False)
sketch8.addGeometry(Part.ArcOfCircle(Part.Circle(Vector(33, 48, 0), Vector(0, 0, 1), 3.75), math.radians(180), math.radians(360)), False)
sketch8.addConstraint(Sketcher.Constraint("Tangent", 0, 2, 1, 1))
sketch8.addConstraint(Sketcher.Constraint("Tangent", 1, 2, 2, 1))
sketch8.addConstraint(Sketcher.Constraint("Tangent", 2, 2, 3, 1))
sketch8.addConstraint(Sketcher.Constraint("Tangent", 3, 2, 0, 1))
sketch8.addConstraint(Sketcher.Constraint("Vertical", 0))
sketch8.addConstraint(Sketcher.Constraint("Vertical", 2))
sketch8.addConstraint(Sketcher.Constraint("DistanceY", 0, 1, 0, 2, 5.0))
sketch8.addConstraint(Sketcher.Constraint("Radius", 1, 3.75))
sketch8.addConstraint(Sketcher.Constraint("DistanceX", -1, 1, 1, 3, 33.0))
sketch8.addConstraint(Sketcher.Constraint("DistanceY", -1, 1, 1, 3, 53.0))
pocket3 = body.newObject("PartDesign::Pocket", "Pocket002")
pocket3.Profile = sketch8
pocket3.Length = 10
doc.recompute()

chamfer = body.newObject("PartDesign::Chamfer", "Chamfer")
chamfer.Base = (pocket3, edges_at(pocket3, [
    (65, 33, 56.75),
    (65, 36.75, 50.5),
    (65, 33, 44.25),
    (65, 29.25, 50.5),
]))
chamfer.Size = 3

# Sketch on XY plane
sketch9 = body.newObject("Sketcher::SketchObject", "Sketch008")
sketch9.AttachmentSupport = (doc.getObject("XY_Plane"), [""])
sketch9.MapMode = "FlatFace"
sketch9.addGeometry(Part.LineSegment(Vector(35, 36.75, 0), Vector(30, 36.75, 0)), False)
sketch9.addGeometry(Part.ArcOfCircle(Part.Circle(Vector(30, 33, 0), Vector(0, 0, 1), 3.75), math.radians(90), math.radians(270)), False)
sketch9.addGeometry(Part.LineSegment(Vector(30, 29.25, 0), Vector(35, 29.25, 0)), False)
sketch9.addGeometry(Part.ArcOfCircle(Part.Circle(Vector(35, 33, 0), Vector(0, 0, 1), 3.75), math.radians(-90), math.radians(90)), False)
sketch9.addConstraint(Sketcher.Constraint("Tangent", 0, 2, 1, 1))
sketch9.addConstraint(Sketcher.Constraint("Tangent", 1, 2, 2, 1))
sketch9.addConstraint(Sketcher.Constraint("Tangent", 2, 2, 3, 1))
sketch9.addConstraint(Sketcher.Constraint("Tangent", 3, 2, 0, 1))
sketch9.addConstraint(Sketcher.Constraint("Horizontal", 0))
sketch9.addConstraint(Sketcher.Constraint("Horizontal", 2))
sketch9.addConstraint(Sketcher.Constraint("DistanceX", 0, 2, 0, 1, 5.0))
sketch9.addConstraint(Sketcher.Constraint("Radius", 1, 3.75))
sketch9.addConstraint(Sketcher.Constraint("DistanceX", -1, 1, 1, 3, 30.0))
sketch9.addConstraint(Sketcher.Constraint("DistanceY", -1, 1, 1, 3, 33.0))
pocket4 = body.newObject("PartDesign::Pocket", "Pocket003")
pocket4.Profile = sketch9
pocket4.Type = "ThroughAll"
pocket4.Reversed = True
doc.recompute()

chamfer2 = body.newObject("PartDesign::Chamfer", "Chamfer001")
chamfer2.Base = (pocket4, edges_at(pocket4, [
    (26.25, 33, 82.5),
    (32.5, 29.25, 82.5),
    (38.75, 33, 82.5),
    (32.5, 36.75, 82.5),
]))
chamfer2.Size = 3

doc.recompute()
